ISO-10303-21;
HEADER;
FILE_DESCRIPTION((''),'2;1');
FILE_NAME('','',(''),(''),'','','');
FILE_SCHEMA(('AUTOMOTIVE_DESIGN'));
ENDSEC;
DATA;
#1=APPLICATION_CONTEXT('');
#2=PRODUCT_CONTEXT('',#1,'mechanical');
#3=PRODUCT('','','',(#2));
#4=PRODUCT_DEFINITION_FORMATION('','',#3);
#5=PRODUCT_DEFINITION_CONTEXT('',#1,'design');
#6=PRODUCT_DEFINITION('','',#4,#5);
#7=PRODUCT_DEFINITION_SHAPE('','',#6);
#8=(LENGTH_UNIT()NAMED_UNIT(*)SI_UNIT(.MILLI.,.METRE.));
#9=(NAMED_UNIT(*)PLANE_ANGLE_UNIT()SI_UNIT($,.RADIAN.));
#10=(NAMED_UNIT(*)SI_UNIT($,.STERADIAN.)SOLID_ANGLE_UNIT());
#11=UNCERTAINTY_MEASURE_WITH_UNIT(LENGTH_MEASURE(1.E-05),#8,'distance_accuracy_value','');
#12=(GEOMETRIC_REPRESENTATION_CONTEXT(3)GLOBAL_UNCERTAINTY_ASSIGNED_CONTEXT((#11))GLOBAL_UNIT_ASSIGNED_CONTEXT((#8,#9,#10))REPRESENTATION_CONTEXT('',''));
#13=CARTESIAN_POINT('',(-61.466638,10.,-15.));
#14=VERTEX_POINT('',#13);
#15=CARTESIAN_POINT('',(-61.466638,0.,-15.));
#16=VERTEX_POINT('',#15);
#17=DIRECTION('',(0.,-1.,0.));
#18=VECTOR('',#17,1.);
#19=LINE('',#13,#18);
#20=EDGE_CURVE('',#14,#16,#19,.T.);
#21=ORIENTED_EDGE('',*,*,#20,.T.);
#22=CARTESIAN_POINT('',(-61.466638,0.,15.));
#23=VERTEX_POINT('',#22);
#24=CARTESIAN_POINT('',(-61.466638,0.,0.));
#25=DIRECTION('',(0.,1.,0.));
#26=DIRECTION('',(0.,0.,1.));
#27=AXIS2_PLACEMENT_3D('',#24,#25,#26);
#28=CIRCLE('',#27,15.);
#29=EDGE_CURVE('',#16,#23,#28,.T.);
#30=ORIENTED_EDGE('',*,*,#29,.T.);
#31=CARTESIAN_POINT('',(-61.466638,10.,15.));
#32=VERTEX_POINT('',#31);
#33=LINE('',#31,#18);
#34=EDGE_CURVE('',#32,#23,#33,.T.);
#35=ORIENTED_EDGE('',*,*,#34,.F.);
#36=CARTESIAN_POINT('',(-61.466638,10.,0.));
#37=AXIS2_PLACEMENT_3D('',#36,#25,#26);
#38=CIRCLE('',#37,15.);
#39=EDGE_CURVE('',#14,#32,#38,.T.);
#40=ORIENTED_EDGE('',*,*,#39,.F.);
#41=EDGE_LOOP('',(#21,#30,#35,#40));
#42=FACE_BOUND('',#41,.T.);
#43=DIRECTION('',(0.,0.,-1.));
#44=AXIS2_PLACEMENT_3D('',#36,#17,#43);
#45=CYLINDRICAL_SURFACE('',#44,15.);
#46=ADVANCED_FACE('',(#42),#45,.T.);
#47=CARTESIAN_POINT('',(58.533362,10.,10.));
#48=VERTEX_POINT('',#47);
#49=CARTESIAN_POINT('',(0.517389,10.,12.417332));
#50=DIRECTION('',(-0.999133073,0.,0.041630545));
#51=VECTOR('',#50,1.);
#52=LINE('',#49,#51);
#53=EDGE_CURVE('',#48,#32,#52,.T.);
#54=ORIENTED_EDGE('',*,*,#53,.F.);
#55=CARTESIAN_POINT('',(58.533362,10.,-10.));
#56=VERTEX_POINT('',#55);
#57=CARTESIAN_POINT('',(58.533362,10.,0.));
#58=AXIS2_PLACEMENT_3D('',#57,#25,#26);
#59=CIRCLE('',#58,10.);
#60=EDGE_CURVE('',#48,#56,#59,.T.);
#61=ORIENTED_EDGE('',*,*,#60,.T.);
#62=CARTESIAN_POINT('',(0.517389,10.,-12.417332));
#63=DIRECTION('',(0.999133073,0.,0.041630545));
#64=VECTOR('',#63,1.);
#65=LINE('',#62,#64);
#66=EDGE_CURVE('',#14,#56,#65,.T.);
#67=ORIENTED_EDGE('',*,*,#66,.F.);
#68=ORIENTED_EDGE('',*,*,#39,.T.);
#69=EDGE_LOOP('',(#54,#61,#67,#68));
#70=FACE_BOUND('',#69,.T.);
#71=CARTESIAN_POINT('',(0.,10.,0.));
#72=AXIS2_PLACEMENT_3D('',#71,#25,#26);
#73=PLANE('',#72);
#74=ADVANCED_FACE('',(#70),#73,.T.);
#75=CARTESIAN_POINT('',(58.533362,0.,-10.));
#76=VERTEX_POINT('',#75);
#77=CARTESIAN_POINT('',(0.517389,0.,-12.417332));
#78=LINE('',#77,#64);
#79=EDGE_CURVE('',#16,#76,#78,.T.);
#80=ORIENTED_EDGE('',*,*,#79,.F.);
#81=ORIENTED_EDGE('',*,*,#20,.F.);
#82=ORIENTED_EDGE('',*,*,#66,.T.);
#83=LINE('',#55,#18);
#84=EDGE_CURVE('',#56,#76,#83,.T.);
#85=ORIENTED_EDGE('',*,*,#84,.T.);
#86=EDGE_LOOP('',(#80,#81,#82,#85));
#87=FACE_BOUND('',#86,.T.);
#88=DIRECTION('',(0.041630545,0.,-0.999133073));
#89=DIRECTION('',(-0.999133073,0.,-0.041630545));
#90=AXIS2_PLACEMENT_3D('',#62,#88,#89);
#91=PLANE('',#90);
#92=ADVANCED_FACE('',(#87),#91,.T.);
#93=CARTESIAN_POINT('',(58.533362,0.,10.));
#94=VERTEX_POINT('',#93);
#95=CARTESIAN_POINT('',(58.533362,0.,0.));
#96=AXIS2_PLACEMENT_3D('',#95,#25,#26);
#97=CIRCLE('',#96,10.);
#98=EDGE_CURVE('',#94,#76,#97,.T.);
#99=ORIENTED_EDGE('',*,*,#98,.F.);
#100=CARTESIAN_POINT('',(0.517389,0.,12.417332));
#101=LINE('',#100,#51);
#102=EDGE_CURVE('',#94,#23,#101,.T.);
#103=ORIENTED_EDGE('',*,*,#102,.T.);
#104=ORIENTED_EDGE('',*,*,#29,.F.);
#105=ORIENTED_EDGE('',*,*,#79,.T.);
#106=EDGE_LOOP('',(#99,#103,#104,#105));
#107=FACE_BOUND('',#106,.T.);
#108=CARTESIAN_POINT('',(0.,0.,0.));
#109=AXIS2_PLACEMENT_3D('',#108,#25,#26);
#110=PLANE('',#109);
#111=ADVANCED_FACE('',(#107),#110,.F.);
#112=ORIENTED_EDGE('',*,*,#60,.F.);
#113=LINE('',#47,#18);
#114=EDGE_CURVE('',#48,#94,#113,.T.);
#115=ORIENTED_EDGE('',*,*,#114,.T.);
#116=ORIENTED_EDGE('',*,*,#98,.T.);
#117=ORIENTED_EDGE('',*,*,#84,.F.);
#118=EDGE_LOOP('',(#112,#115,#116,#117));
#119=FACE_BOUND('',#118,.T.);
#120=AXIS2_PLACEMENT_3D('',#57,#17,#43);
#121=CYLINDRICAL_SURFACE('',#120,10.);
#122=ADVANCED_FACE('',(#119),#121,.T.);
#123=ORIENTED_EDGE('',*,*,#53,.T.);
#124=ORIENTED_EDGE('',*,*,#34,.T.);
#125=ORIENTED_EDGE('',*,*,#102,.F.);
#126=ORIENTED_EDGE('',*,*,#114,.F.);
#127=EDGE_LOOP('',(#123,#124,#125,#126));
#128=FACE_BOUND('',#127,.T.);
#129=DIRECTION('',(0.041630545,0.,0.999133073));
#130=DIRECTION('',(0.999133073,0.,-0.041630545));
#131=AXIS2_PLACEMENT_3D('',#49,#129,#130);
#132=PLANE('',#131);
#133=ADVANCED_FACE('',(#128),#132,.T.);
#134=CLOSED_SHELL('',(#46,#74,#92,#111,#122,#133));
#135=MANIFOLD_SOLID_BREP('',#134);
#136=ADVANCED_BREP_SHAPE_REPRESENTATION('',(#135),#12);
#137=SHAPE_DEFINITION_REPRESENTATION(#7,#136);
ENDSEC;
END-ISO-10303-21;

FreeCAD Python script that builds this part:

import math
import FreeCAD as App
import Part
import Sketcher
Q = App.Units.Quantity

doc = App.newDocument("Part")
body = doc.addObject("PartDesign::Body", "Body")

# Sketch on XZ plane
sketch1 = body.newObject("Sketcher::SketchObject", "Sketch")
sketch1.AttachmentSupport = (doc.getObject("XZ_Plane"), [""])
sketch1.MapMode = "FlatFace"
sketch1.addGeometry(Part.LineSegment(App.Vector(-61.5, 15, 0), App.Vector(-60.2, 14.9, 0)), False)
sketch1.addGeometry(Part.LineSegment(App.Vector(-60.2, 14.9, 0), App.Vector(58.5, 10, 0)), False)
sketch1.addGeometry(Part.ArcOfCircle(Part.Circle(App.Vector(58.5, 0, 0), App.Vector(0, 0, 1), 10), math.radians(0), math.radians(90)), False)
sketch1.addGeometry(Part.ArcOfCircle(Part.Circle(App.Vector(58.5, 0, 0), App.Vector(0, 0, 1), 10), math.radians(-90), math.radians(0)), False)
sketch1.addGeometry(Part.LineSegment(App.Vector(58.5, -10, 0), App.Vector(-60.2, -14.9, 0)), False)
sketch1.addGeometry(Part.LineSegment(App.Vector(-60.2, -14.9, 0), App.Vector(-61.5, -15, 0)), False)
sketch1.addGeometry(Part.ArcOfCircle(Part.Circle(App.Vector(-61.5, 0, 0), App.Vector(0, 0, 1), 15), math.radians(90), math.radians(270)), False)
sketch1.addConstraint(Sketcher.Constraint("Coincident", 0, 2, 1, 1))
sketch1.addConstraint(Sketcher.Constraint("Coincident", 1, 2, 2, 2))
sketch1.addConstraint(Sketcher.Constraint("Tangent", 2, 1, 3, 2))
sketch1.addConstraint(Sketcher.Constraint("Coincident", 3, 1, 4, 1))
sketch1.addConstraint(Sketcher.Constraint("Coincident", 4, 2, 5, 1))
sketch1.addConstraint(Sketcher.Constraint("Coincident", 5, 2, 6, 2))
sketch1.addConstraint(Sketcher.Constraint("Coincident", 6, 1, 0, 1))
sketch1.addConstraint(Sketcher.Constraint("Equal", 2, 3))
sketch1.addConstraint(Sketcher.Constraint("Symmetric", 1, 2, 3, 1, -1))
sketch1.addConstraint(Sketcher.Constraint("Symmetric", 0, 2, 4, 2, -1))
sketch1.addConstraint(Sketcher.Constraint("Symmetric", 5, 2, 6, 1, -1))
sketch1.addConstraint(Sketcher.Constraint("PointOnObject", 2, 1, -1))
sketch1.addConstraint(Sketcher.Constraint("Parallel", 0, 1))
sketch1.addConstraint(Sketcher.Constraint("Vertical", 3, 3, 1, 2))
sketch1.addConstraint(Sketcher.Constraint("Vertical", 6, 3, 5, 2))
sketch1.addConstraint(Sketcher.Constraint("Radius", 2, Q("10 mm")))
sketch1.addConstraint(Sketcher.Constraint("Radius", 6, Q("15 mm")))
sketch1.addConstraint(Sketcher.Constraint("DistanceX", 6, 3, 2, 3, Q("120 mm")))
sketch1.addConstraint(Sketcher.Constraint("Distance", 0, Q("1.248916 mm")))
sketch1.addConstraint(Sketcher.Constraint("DistanceX", -1, 1, 2, 3, Q("58.533362 mm")))
pad1 = body.newObject("PartDesign::Pad", "Pad")
pad1.Profile = sketch1
pad1.Length = 10
pad1.Reversed = True

doc.recompute()
